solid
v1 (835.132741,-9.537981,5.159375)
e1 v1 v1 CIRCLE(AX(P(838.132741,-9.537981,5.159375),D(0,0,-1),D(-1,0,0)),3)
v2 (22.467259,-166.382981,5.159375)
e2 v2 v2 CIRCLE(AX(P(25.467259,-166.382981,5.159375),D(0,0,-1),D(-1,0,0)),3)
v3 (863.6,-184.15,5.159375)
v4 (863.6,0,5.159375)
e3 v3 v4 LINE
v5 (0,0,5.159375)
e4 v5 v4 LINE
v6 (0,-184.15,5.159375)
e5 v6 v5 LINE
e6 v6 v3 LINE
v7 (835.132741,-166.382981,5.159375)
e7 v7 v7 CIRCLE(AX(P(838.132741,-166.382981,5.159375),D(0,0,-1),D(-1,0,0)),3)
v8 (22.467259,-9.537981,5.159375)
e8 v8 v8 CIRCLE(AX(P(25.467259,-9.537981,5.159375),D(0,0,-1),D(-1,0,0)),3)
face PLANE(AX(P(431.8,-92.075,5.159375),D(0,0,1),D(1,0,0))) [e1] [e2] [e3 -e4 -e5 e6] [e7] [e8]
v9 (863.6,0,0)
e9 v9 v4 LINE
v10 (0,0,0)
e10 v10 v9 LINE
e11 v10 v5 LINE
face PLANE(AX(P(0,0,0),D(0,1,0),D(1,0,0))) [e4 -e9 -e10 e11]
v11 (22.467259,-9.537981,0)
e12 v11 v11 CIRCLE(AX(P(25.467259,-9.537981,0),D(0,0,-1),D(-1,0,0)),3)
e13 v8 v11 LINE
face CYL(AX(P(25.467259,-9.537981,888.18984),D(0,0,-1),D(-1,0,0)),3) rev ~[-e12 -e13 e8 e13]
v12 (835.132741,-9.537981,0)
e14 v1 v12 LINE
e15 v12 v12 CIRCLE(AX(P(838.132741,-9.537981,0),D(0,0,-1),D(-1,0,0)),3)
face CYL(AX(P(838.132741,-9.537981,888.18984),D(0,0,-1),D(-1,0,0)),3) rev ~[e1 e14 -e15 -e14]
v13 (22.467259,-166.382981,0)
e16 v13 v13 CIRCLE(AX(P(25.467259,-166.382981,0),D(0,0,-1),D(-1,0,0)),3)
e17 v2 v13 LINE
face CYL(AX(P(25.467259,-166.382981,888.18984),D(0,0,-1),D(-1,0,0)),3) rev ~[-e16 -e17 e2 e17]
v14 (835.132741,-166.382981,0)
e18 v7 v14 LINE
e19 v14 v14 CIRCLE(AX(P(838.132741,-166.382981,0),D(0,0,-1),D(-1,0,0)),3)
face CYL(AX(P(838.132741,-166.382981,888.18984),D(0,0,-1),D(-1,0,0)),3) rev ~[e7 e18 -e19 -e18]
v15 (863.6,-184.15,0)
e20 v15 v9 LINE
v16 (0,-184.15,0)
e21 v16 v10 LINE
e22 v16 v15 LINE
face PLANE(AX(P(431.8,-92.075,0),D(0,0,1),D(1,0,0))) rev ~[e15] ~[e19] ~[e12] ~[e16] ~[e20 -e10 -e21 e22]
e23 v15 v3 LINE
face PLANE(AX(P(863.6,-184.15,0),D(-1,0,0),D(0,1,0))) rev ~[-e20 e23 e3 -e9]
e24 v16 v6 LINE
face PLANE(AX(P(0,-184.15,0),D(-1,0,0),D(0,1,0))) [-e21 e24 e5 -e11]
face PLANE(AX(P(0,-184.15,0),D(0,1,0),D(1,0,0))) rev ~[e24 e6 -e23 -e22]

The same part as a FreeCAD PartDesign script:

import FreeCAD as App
import Part
import Sketcher
Q = App.Units.Quantity

doc = App.newDocument("Part")
body = doc.addObject("PartDesign::Body", "Body")

sketch1 = doc.addObject("Sketcher::SketchObject", "Sketch")
body.addObject(sketch1)
sketch1.AttachmentSupport = (doc.XY_Plane, [""])
sketch1.MapMode = "FlatFace"
sketch1.addGeometry(Part.LineSegment(App.Vector(0, 0, 0), App.Vector(0, -184.15, 0)), False)
sketch1.addGeometry(Part.LineSegment(App.Vector(0, -184.15, 0), App.Vector(863.6, -184.15, 0)), False)
sketch1.addGeometry(Part.LineSegment(App.Vector(863.6, -184.15, 0), App.Vector(863.6, 0, 0)), False)
sketch1.addGeometry(Part.LineSegment(App.Vector(863.6, 0, 0), App.Vector(0, 0, 0)), False)
sketch1.addConstraint(Sketcher.Constraint("Coincident", 0, 2, 1, 1))
sketch1.addConstraint(Sketcher.Constraint("Coincident", 1, 2, 2, 1))
sketch1.addConstraint(Sketcher.Constraint("Coincident", 2, 2, 3, 1))
sketch1.addConstraint(Sketcher.Constraint("Coincident", 3, 2, 0, 1))
sketch1.addConstraint(Sketcher.Constraint("Vertical", 0))
sketch1.addConstraint(Sketcher.Constraint("Horizontal", 1))
sketch1.addConstraint(Sketcher.Constraint("Vertical", 2))
sketch1.addConstraint(Sketcher.Constraint("Horizontal", 3))
sketch1.addConstraint(Sketcher.Constraint("Coincident", 3, 2, -1, 1))
sketch1.addConstraint(Sketcher.Constraint("DistanceX", 1, 1, 1, 2, Q("34 in")))
sketch1.addConstraint(Sketcher.Constraint("DistanceY", 0, 2, 0, 1, Q("7.25 in")))
pad1 = doc.addObject("PartDesign::Pad", "Pad")
body.addObject(pad1)
pad1.Profile = sketch1
pad1.Length = Q("0.203125 in")

sketch2 = doc.addObject("Sketcher::SketchObject", "Sketch001")
body.addObject(sketch2)
sketch2.AttachmentSupport = (doc.XY_Plane, [""])
sketch2.MapMode = "FlatFace"
sketch2.AttachmentOffset = App.Placement(App.Vector(0, 0, 0.203125 * 25.4), App.Rotation())
sketch2.addGeometry(Part.Circle(App.Vector(25.467259, -9.537981, 0), App.Vector(0, 0, 1), 3), False)
sketch2.addGeometry(Part.Circle(App.Vector(25.467259, -166.382981, 0), App.Vector(0, 0, 1), 3), False)
sketch2.addGeometry(Part.Circle(App.Vector(838.132741, -166.382981, 0), App.Vector(0, 0, 1), 3), False)
sketch2.addGeometry(Part.Circle(App.Vector(838.132741, -9.537981, 0), App.Vector(0, 0, 1), 3), False)
sketch2.addConstraint(Sketcher.Constraint("Equal", 0, 1))
sketch2.addConstraint(Sketcher.Constraint("Equal", 1, 2))
sketch2.addConstraint(Sketcher.Constraint("Equal", 2, 3))
sketch2.addConstraint(Sketcher.Constraint("Horizontal", 1, 3, 2, 3))
sketch2.addConstraint(Sketcher.Constraint("Horizontal", 0, 3, 3, 3))
sketch2.addConstraint(Sketcher.Constraint("Vertical", 0, 3, 1, 3))
sketch2.addConstraint(Sketcher.Constraint("Vertical", 2, 3, 3, 3))
sketch2.addConstraint(Sketcher.Constraint("Diameter", 0, Q("6 mm")))
sketch2.addConstraint(Sketcher.Constraint("DistanceY", 1, 3, 0, 3, Q("6.175 in")))
sketch2.addConstraint(Sketcher.Constraint("DistanceX", -1, 1, 0, 3, Q("25.467259 mm")))
sketch2.addConstraint(Sketcher.Constraint("DistanceY", 0, 3, -1, 1, Q("9.537981 mm")))
sketch2.addConstraint(Sketcher.Constraint("DistanceX", -1, 1, 2, 3, Q("838.132741 mm")))
doc.recompute()
hole = doc.addObject("PartDesign::Hole", "Hole")
body.addObject(hole)
hole.Profile = sketch2
hole.ThreadType = "None"
hole.Diameter = 6
hole.DepthType = "ThroughAll"

doc.recompute()
